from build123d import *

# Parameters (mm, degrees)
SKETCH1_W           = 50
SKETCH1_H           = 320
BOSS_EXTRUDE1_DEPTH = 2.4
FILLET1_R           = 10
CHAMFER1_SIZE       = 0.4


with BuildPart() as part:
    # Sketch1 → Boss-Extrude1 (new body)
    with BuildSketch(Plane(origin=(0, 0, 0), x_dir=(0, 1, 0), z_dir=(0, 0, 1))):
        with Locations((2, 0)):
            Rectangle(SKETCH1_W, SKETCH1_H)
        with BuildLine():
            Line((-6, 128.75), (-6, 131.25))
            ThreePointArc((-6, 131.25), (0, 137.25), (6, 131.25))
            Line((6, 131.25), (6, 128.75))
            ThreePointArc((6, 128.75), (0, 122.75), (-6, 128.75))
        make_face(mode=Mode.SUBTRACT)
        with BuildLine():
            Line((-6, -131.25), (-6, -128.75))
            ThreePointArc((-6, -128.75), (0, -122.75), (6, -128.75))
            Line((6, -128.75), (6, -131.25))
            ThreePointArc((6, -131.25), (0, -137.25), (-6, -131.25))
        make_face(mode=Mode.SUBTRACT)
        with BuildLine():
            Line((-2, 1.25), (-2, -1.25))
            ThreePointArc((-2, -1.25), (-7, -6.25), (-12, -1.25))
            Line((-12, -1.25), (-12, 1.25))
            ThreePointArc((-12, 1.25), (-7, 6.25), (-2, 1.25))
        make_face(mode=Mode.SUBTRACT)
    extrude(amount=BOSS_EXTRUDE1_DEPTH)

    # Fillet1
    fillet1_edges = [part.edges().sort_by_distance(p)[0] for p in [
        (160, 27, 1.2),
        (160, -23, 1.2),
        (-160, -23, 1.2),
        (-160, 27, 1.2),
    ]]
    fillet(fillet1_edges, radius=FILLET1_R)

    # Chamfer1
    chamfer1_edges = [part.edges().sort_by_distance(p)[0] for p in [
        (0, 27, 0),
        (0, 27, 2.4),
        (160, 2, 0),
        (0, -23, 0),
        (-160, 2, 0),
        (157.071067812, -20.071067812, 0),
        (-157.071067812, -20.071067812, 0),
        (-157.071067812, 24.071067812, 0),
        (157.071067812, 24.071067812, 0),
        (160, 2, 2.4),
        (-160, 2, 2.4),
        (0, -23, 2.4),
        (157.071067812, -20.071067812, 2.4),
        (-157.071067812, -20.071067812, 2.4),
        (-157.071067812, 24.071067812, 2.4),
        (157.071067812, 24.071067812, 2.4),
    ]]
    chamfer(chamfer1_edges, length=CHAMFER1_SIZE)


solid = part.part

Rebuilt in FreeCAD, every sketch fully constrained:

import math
import FreeCAD as App
import Part
import Sketcher
from FreeCAD import Vector
Q = App.Units.Quantity


def edges_at(feature, points):
    """Names of the edges that pass closest to the given points."""
    edges = feature.Shape.Edges
    near = lambda p: min(range(len(edges)), key=lambda i: edges[i].distToShape(Part.Vertex(*p))[0])
    return sorted({f"Edge{near(p) + 1}" for p in points})

doc = App.newDocument("Part")
body = doc.addObject("PartDesign::Body", "Body")

# Sketch on XY plane
sketch1 = doc.addObject("Sketcher::SketchObject", "Sketch")
body.addObject(sketch1)
sketch1.AttachmentSupport = (doc.XY_Plane, [""])
sketch1.MapMode = "FlatFace"
sketch1.addGeometry([
    Part.LineSegment(Vector(-160, -23, 0), Vector(160, -23, 0)),  # 0
    Part.LineSegment(Vector(160, -23, 0), Vector(160, 27, 0)),  # 1
    Part.LineSegment(Vector(160, 27, 0), Vector(-160, 27, 0)),  # 2
    Part.LineSegment(Vector(-160, 27, 0), Vector(-160, -23, 0)),  # 3
    Part.ArcOfCircle(Part.Circle(Vector(131.2, 0, 0), Vector(0, 0, 1), 6), math.radians(-90), math.radians(90)),  # 4
    Part.LineSegment(Vector(131.2, -6, 0), Vector(128.8, -6, 0)),  # 5
    Part.ArcOfCircle(Part.Circle(Vector(128.8, 0, 0), Vector(0, 0, 1), 6), math.radians(90), math.radians(270)),  # 6
    Part.LineSegment(Vector(128.8, 6, 0), Vector(131.2, 6, 0)),  # 7
    Part.ArcOfCircle(Part.Circle(Vector(-1.2, -7, 0), Vector(0, 0, 1), 5), math.radians(90), math.radians(270)),  # 8
    Part.LineSegment(Vector(-1.2, -2, 0), Vector(1.2, -2, 0)),  # 9
    Part.ArcOfCircle(Part.Circle(Vector(1.2, -7, 0), Vector(0, 0, 1), 5), math.radians(-90), math.radians(90)),  # 10
    Part.LineSegment(Vector(1.2, -12, 0), Vector(-1.2, -12, 0)),  # 11
    Part.ArcOfCircle(Part.Circle(Vector(-128.8, 0, 0), Vector(0, 0, 1), 6), math.radians(-90), math.radians(90)),  # 12
    Part.LineSegment(Vector(-128.8, -6, 0), Vector(-131.2, -6, 0)),  # 13
    Part.ArcOfCircle(Part.Circle(Vector(-131.2, 0, 0), Vector(0, 0, 1), 6), math.radians(90), math.radians(270)),  # 14
    Part.LineSegment(Vector(-131.2, 6, 0), Vector(-128.8, 6, 0)),  # 15
], False)
sketch1.addConstraint([
    Sketcher.Constraint("Coincident", 0, 2, 1, 1),
    Sketcher.Constraint("Coincident", 1, 2, 2, 1),
    Sketcher.Constraint("Coincident", 2, 2, 3, 1),
    Sketcher.Constraint("Coincident", 3, 2, 0, 1),
    Sketcher.Constraint("Tangent", 4, 1, 5, 1),
    Sketcher.Constraint("Tangent", 5, 2, 6, 2),
    Sketcher.Constraint("Tangent", 6, 1, 7, 1),
    Sketcher.Constraint("Tangent", 7, 2, 4, 2),
    Sketcher.Constraint("Tangent", 8, 1, 9, 1),
    Sketcher.Constraint("Tangent", 9, 2, 10, 2),
    Sketcher.Constraint("Tangent", 10, 1, 11, 1),
    Sketcher.Constraint("Tangent", 11, 2, 8, 2),
    Sketcher.Constraint("Tangent", 12, 1, 13, 1),
    Sketcher.Constraint("Tangent", 13, 2, 14, 2),
    Sketcher.Constraint("Tangent", 14, 1, 15, 1),
    Sketcher.Constraint("Tangent", 15, 2, 12, 2),
    Sketcher.Constraint("Horizontal", 0),
    Sketcher.Constraint("Vertical", 1),
    Sketcher.Constraint("Horizontal", 2),
    Sketcher.Constraint("Vertical", 3),
    Sketcher.Constraint("Horizontal", 5),
    Sketcher.Constraint("Horizontal", 7),
    Sketcher.Constraint("Horizontal", 9),
    Sketcher.Constraint("Horizontal", 11),
    Sketcher.Constraint("Horizontal", 13),
    Sketcher.Constraint("Horizontal", 15),
    Sketcher.Constraint("Equal", 6, 12),
    Sketcher.Constraint("Symmetric", 6, 3, 12, 3, -1, 1),
    Sketcher.Constraint("Symmetric", 4, 3, 14, 3, -2),
    Sketcher.Constraint("Equal", 7, 9),
    Sketcher.Constraint("Radius", 4, Q("6 mm")),
    Sketcher.Constraint("Radius", 8, Q("5 mm")),
    Sketcher.Constraint("DistanceX", 0, 1, 0, 2, Q("320 mm")),
    Sketcher.Constraint("DistanceY", 1, 1, 1, 2, Q("50 mm")),
    Sketcher.Constraint("DistanceX", 5, 2, 5, 1, Q("2.5 mm")),
    Sketcher.Constraint("DistanceY", 8, 3, -1, 1, Q("7 mm")),
    Sketcher.Constraint("DistanceX", -1, 1, 0, 2, Q("160 mm")),
    Sketcher.Constraint("DistanceY", 0, 2, -1, 1, Q("23 mm")),
    Sketcher.Constraint("DistanceX", 8, 3, 6, 3, Q("130 mm")),
    Sketcher.Constraint("DistanceX", 12, 3, 10, 3, Q("130 mm")),
])
pad1 = doc.addObject("PartDesign::Pad", "Pad")
body.addObject(pad1)
pad1.Profile = sketch1
pad1.Length = 2.4
doc.recompute()

fillet = doc.addObject("PartDesign::Fillet", "Fillet")
body.addObject(fillet)
fillet.Base = (pad1, edges_at(pad1, [
    (160, 27, 1.2),
    (160, -23, 1.2),
    (-160, -23, 1.2),
    (-160, 27, 1.2),
]))
fillet.Radius = 10
doc.recompute()

chamfer = doc.addObject("PartDesign::Chamfer", "Chamfer")
body.addObject(chamfer)
chamfer.Base = (fillet, edges_at(fillet, [
    (0, 27, 0),
    (0, 27, 2.4),
    (160, 2, 0),
    (0, -23, 0),
    (-160, 2, 0),
    (157.071, -20.071, 0),
    (-157.071, -20.071, 0),
    (-157.071, 24.071, 0),
    (157.071, 24.071, 0),
    (160, 2, 2.4),
    (-160, 2, 2.4),
    (0, -23, 2.4),
    (157.071, -20.071, 2.4),
    (-157.071, -20.071, 2.4),
    (-157.071, 24.071, 2.4),
    (157.071, 24.071, 2.4),
]))
chamfer.Size = 0.4

doc.recompute()
